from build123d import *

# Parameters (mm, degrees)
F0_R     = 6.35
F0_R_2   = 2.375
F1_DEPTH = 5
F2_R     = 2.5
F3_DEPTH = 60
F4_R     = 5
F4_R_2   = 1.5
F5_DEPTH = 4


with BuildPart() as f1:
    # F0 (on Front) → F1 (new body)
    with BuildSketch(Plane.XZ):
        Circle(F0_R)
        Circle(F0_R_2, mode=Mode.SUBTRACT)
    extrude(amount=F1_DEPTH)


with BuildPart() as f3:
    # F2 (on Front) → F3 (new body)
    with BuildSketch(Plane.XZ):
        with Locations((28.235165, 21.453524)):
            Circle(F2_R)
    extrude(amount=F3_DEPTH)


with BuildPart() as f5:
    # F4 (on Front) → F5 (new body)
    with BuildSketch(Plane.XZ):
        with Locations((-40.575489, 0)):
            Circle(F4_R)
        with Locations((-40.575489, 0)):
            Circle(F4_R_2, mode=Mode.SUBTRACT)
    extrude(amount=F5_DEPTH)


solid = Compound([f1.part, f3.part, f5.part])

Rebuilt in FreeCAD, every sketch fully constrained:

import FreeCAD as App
import Part
import Sketcher
from FreeCAD import Vector
Q = App.Units.Quantity

doc = App.newDocument("Part")
body = doc.addObject("PartDesign::Body", "Body")

# Sketch on XZ plane
sketch1 = doc.addObject("Sketcher::SketchObject", "Sketch")
body.addObject(sketch1)
sketch1.AttachmentSupport = (doc.XZ_Plane, [""])
sketch1.MapMode = "FlatFace"
sketch1.addGeometry([
    Part.Circle(Vector(0, 0, 0), Vector(0, 0, 1), 6.3),
    Part.Circle(Vector(0, 0, 0), Vector(0, 0, 1), 2.4),
], False)
sketch1.addConstraint([
    Sketcher.Constraint("Coincident", 0, 3, -1, 1),
    Sketcher.Constraint("Coincident", 1, 3, -1, 1),
    Sketcher.Constraint("Diameter", 0, Q("12.7 mm")),
    Sketcher.Constraint("Diameter", 1, Q("4.75 mm")),
])
pad1 = doc.addObject("PartDesign::Pad", "Pad")
body.addObject(pad1)
pad1.Profile = sketch1
pad1.Length = 5
body2 = doc.addObject("PartDesign::Body", "Body001")

# Sketch on XZ plane
sketch2 = doc.addObject("Sketcher::SketchObject", "Sketch001")
body2.addObject(sketch2)
sketch2.AttachmentSupport = (doc.getObject("XZ_Plane001"), [""])
sketch2.MapMode = "FlatFace"
sketch2.addGeometry(Part.Circle(Vector(28.2, 21.5, 0), Vector(0, 0, 1), 2.5), False)
sketch2.addConstraint([
    Sketcher.Constraint("Diameter", 0, Q("5 mm")),
    Sketcher.Constraint("DistanceX", -1, 1, 0, 3, Q("28.235165 mm")),
    Sketcher.Constraint("DistanceY", -1, 1, 0, 3, Q("21.453524 mm")),
])
pad2 = doc.addObject("PartDesign::Pad", "Pad001")
body2.addObject(pad2)
pad2.Profile = sketch2
pad2.Length = 60
body3 = doc.addObject("PartDesign::Body", "Body002")

# Sketch on XZ plane
sketch3 = doc.addObject("Sketcher::SketchObject", "Sketch002")
body3.addObject(sketch3)
sketch3.AttachmentSupport = (doc.getObject("XZ_Plane002"), [""])
sketch3.MapMode = "FlatFace"
sketch3.addGeometry([
    Part.Circle(Vector(-40.6, 0, 0), Vector(0, 0, 1), 5),
    Part.Circle(Vector(-40.6, 0, 0), Vector(0, 0, 1), 1.5),
], False)
sketch3.addConstraint([
    Sketcher.Constraint("Coincident", 1, 3, 0, 3),
    Sketcher.Constraint("PointOnObject", 0, 3, -1),
    Sketcher.Constraint("Diameter", 0, Q("10 mm")),
    Sketcher.Constraint("Diameter", 1, Q("3 mm")),
    Sketcher.Constraint("DistanceX", 0, 3, -1, 1, Q("40.575489 mm")),
])
pad3 = doc.addObject("PartDesign::Pad", "Pad002")
body3.addObject(pad3)
pad3.Profile = sketch3
pad3.Length = 4

doc.recompute()
